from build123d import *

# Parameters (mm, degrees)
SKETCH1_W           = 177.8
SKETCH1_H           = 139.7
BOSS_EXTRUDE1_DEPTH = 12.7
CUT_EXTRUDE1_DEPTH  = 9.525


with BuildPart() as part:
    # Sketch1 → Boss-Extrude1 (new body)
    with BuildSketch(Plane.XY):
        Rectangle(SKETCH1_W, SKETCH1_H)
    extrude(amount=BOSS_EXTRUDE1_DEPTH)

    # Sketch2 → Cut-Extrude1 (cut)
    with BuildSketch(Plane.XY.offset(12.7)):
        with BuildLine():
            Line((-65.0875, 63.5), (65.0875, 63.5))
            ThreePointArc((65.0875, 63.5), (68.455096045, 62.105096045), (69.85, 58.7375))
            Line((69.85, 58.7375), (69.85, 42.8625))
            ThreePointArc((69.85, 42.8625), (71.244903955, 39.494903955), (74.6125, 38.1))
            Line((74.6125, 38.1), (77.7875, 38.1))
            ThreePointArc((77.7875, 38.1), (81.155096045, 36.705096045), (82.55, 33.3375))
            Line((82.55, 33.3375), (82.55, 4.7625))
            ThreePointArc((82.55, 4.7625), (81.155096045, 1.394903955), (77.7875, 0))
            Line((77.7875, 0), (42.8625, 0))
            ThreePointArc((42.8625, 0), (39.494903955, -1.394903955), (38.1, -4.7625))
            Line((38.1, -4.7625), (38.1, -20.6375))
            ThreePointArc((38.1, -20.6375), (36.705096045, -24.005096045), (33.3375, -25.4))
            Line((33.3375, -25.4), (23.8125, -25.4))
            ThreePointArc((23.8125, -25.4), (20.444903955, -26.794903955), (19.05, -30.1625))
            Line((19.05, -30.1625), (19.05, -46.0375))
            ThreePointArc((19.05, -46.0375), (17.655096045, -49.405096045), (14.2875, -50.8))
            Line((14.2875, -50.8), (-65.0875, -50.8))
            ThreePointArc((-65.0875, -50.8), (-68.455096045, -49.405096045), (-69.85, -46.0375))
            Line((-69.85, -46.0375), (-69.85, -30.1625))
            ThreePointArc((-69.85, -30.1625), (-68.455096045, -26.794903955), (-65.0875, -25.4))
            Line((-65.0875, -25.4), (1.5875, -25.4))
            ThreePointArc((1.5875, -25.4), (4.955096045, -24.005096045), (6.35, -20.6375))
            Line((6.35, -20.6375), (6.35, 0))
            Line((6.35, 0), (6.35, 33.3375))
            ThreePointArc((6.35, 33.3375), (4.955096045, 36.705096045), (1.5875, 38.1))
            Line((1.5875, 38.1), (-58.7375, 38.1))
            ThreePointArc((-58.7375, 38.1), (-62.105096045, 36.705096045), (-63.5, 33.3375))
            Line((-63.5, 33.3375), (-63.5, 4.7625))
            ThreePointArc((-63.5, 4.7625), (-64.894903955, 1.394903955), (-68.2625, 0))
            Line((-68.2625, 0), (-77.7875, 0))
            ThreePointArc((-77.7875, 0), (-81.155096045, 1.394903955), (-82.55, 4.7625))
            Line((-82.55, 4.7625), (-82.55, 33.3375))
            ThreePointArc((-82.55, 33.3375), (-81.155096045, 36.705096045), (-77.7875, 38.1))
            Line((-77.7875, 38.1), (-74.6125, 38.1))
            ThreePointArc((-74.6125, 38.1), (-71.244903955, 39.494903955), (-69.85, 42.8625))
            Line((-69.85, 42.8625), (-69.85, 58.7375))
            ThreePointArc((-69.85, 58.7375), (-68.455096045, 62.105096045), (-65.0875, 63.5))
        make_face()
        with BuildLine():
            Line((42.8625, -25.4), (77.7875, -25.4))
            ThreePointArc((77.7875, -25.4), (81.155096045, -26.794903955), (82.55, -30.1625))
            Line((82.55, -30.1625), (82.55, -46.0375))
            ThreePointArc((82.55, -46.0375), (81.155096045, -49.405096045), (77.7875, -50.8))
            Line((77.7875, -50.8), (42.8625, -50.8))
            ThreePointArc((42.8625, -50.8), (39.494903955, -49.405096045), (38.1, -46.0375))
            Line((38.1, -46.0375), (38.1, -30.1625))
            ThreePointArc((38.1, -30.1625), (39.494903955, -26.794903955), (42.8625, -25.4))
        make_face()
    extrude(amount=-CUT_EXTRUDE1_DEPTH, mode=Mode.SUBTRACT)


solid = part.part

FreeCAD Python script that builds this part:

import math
import FreeCAD as App
import Part
import Sketcher
Q = App.Units.Quantity

doc = App.newDocument("Part")
body = doc.addObject("PartDesign::Body", "Body")

# Sketch on XY plane
sketch1 = body.newObject("Sketcher::SketchObject", "Sketch")
sketch1.AttachmentSupport = (doc.getObject("XY_Plane"), [""])
sketch1.MapMode = "FlatFace"
sketch1.addGeometry([
    Part.LineSegment(App.Vector(-88.9, 69.85, 0), App.Vector(-88.9, -69.85, 0)),
    Part.LineSegment(App.Vector(-88.9, -69.85, 0), App.Vector(88.9, -69.85, 0)),
    Part.LineSegment(App.Vector(88.9, -69.85, 0), App.Vector(88.9, 69.85, 0)),
    Part.LineSegment(App.Vector(88.9, 69.85, 0), App.Vector(-88.9, 69.85, 0)),
], False)
sketch1.addConstraint([
    Sketcher.Constraint("Coincident", 0, 2, 1, 1),
    Sketcher.Constraint("Coincident", 1, 2, 2, 1),
    Sketcher.Constraint("Coincident", 2, 2, 3, 1),
    Sketcher.Constraint("Coincident", 3, 2, 0, 1),
    Sketcher.Constraint("Vertical", 0),
    Sketcher.Constraint("Horizontal", 1),
    Sketcher.Constraint("Vertical", 2),
    Sketcher.Constraint("Horizontal", 3),
    Sketcher.Constraint("Symmetric", 0, 2, 2, 2, -1, 1),
    Sketcher.Constraint("DistanceX", 1, 1, 1, 2, Q("7 in")),
    Sketcher.Constraint("DistanceY", 0, 2, 0, 1, Q("5.5 in")),
])
pad1 = body.newObject("PartDesign::Pad", "Pad")
pad1.Profile = sketch1
pad1.Length = Q("0.5 in")

# Sketch on XY plane
sketch2 = body.newObject("Sketcher::SketchObject", "Sketch001")
sketch2.AttachmentSupport = (doc.getObject("XY_Plane"), [""])
sketch2.MapMode = "FlatFace"
sketch2.AttachmentOffset = App.Placement(App.Vector(0, 0, 0.5 * 25.4), App.Rotation())
sketch2.addGeometry([
    Part.LineSegment(App.Vector(65.0875, 63.5, 0), App.Vector(-65.0875, 63.5, 0)),  # 0
    Part.ArcOfCircle(Part.Circle(App.Vector(-65.0875, 58.7375, 0), App.Vector(0, 0, 1), 4.7625), math.radians(90), math.radians(180)),  # 1
    Part.LineSegment(App.Vector(-69.85, 58.7375, 0), App.Vector(-69.85, 42.8625, 0)),  # 2
    Part.ArcOfCircle(Part.Circle(App.Vector(-74.6125, 42.8625, 0), App.Vector(0, 0, 1), 4.7625), math.radians(-90), math.radians(0)),  # 3
    Part.LineSegment(App.Vector(-74.6125, 38.1, 0), App.Vector(-77.7875, 38.1, 0)),  # 4
    Part.ArcOfCircle(Part.Circle(App.Vector(-77.7875, 33.3375, 0), App.Vector(0, 0, 1), 4.7625), math.radians(90), math.radians(180)),  # 5
    Part.LineSegment(App.Vector(-82.55, 33.3375, 0), App.Vector(-82.55, 4.7625, 0)),  # 6
    Part.ArcOfCircle(Part.Circle(App.Vector(-77.7875, 4.7625, 0), App.Vector(0, 0, 1), 4.7625), math.radians(-180), math.radians(-90)),  # 7
    Part.LineSegment(App.Vector(-77.7875, 0, 0), App.Vector(-68.2625, 0, 0)),  # 8
    Part.ArcOfCircle(Part.Circle(App.Vector(-68.2625, 4.7625, 0), App.Vector(0, 0, 1), 4.7625), math.radians(-90), math.radians(0)),  # 9
    Part.LineSegment(App.Vector(-63.5, 4.7625, 0), App.Vector(-63.5, 33.3375, 0)),  # 10
    Part.ArcOfCircle(Part.Circle(App.Vector(-58.7375, 33.3375, 0), App.Vector(0, 0, 1), 4.7625), math.radians(90), math.radians(180)),  # 11
    Part.LineSegment(App.Vector(-58.7375, 38.1, 0), App.Vector(1.5875, 38.1, 0)),  # 12
    Part.ArcOfCircle(Part.Circle(App.Vector(1.5875, 33.3375, 0), App.Vector(0, 0, 1), 4.7625), math.radians(0), math.radians(90)),  # 13
    Part.LineSegment(App.Vector(6.35, 33.3375, 0), App.Vector(6.35, -20.6375, 0)),  # 14
    Part.ArcOfCircle(Part.Circle(App.Vector(1.5875, -20.6375, 0), App.Vector(0, 0, 1), 4.7625), math.radians(-90), math.radians(0)),  # 15
    Part.LineSegment(App.Vector(1.5875, -25.4, 0), App.Vector(-65.0875, -25.4, 0)),  # 16
    Part.ArcOfCircle(Part.Circle(App.Vector(-65.0875, -30.1625, 0), App.Vector(0, 0, 1), 4.7625), math.radians(90), math.radians(180)),  # 17
    Part.LineSegment(App.Vector(-69.85, -30.1625, 0), App.Vector(-69.85, -46.0375, 0)),  # 18
    Part.ArcOfCircle(Part.Circle(App.Vector(-65.0875, -46.0375, 0), App.Vector(0, 0, 1), 4.7625), math.radians(-180), math.radians(-90)),  # 19
    Part.LineSegment(App.Vector(-65.0875, -50.8, 0), App.Vector(14.2875, -50.8, 0)),  # 20
    Part.ArcOfCircle(Part.Circle(App.Vector(14.2875, -46.0375, 0), App.Vector(0, 0, 1), 4.7625), math.radians(-90), math.radians(0)),  # 21
    Part.LineSegment(App.Vector(19.05, -46.0375, 0), App.Vector(19.05, -30.1625, 0)),  # 22
    Part.ArcOfCircle(Part.Circle(App.Vector(23.8125, -30.1625, 0), App.Vector(0, 0, 1), 4.7625), math.radians(90), math.radians(180)),  # 23
    Part.LineSegment(App.Vector(23.8125, -25.4, 0), App.Vector(33.3375, -25.4, 0)),  # 24
    Part.ArcOfCircle(Part.Circle(App.Vector(33.3375, -20.6375, 0), App.Vector(0, 0, 1), 4.7625), math.radians(-90), math.radians(0)),  # 25
    Part.LineSegment(App.Vector(38.1, -20.6375, 0), App.Vector(38.1, -4.7625, 0)),  # 26
    Part.ArcOfCircle(Part.Circle(App.Vector(42.8625, -4.7625, 0), App.Vector(0, 0, 1), 4.7625), math.radians(90), math.radians(180)),  # 27
    Part.LineSegment(App.Vector(42.8625, 0, 0), App.Vector(77.7875, 0, 0)),  # 28
    Part.ArcOfCircle(Part.Circle(App.Vector(77.7875, 4.7625, 0), App.Vector(0, 0, 1), 4.7625), math.radians(-90), math.radians(0)),  # 29
    Part.LineSegment(App.Vector(82.55, 4.7625, 0), App.Vector(82.55, 33.3375, 0)),  # 30
    Part.ArcOfCircle(Part.Circle(App.Vector(77.7875, 33.3375, 0), App.Vector(0, 0, 1), 4.7625), math.radians(0), math.radians(90)),  # 31
    Part.LineSegment(App.Vector(77.7875, 38.1, 0), App.Vector(74.6125, 38.1, 0)),  # 32
    Part.ArcOfCircle(Part.Circle(App.Vector(74.6125, 42.8625, 0), App.Vector(0, 0, 1), 4.7625), math.radians(-180), math.radians(-90)),  # 33
    Part.LineSegment(App.Vector(69.85, 42.8625, 0), App.Vector(69.85, 58.7375, 0)),  # 34
    Part.ArcOfCircle(Part.Circle(App.Vector(65.0875, 58.7375, 0), App.Vector(0, 0, 1), 4.7625), math.radians(0), math.radians(90)),  # 35
    Part.LineSegment(App.Vector(77.7875, -25.4, 0), App.Vector(42.8625, -25.4, 0)),  # 36
    Part.ArcOfCircle(Part.Circle(App.Vector(42.8625, -30.1625, 0), App.Vector(0, 0, 1), 4.7625), math.radians(90), math.radians(180)),  # 37
    Part.LineSegment(App.Vector(38.1, -30.1625, 0), App.Vector(38.1, -46.0375, 0)),  # 38
    Part.ArcOfCircle(Part.Circle(App.Vector(42.8625, -46.0375, 0), App.Vector(0, 0, 1), 4.7625), math.radians(-180), math.radians(-90)),  # 39
    Part.LineSegment(App.Vector(42.8625, -50.8, 0), App.Vector(77.7875, -50.8, 0)),  # 40
    Part.ArcOfCircle(Part.Circle(App.Vector(77.7875, -46.0375, 0), App.Vector(0, 0, 1), 4.7625), math.radians(-90), math.radians(0)),  # 41
    Part.LineSegment(App.Vector(82.55, -46.0375, 0), App.Vector(82.55, -30.1625, 0)),  # 42
    Part.ArcOfCircle(Part.Circle(App.Vector(77.7875, -30.1625, 0), App.Vector(0, 0, 1), 4.7625), math.radians(0), math.radians(90)),  # 43
], False)
sketch2.addConstraint([
    Sketcher.Constraint("Tangent", 0, 2, 1, 1),
    Sketcher.Constraint("Tangent", 1, 2, 2, 1),
    Sketcher.Constraint("Tangent", 2, 2, 3, 2),
    Sketcher.Constraint("Tangent", 3, 1, 4, 1),
    Sketcher.Constraint("Tangent", 4, 2, 5, 1),
    Sketcher.Constraint("Tangent", 5, 2, 6, 1),
    Sketcher.Constraint("Tangent", 6, 2, 7, 1),
    Sketcher.Constraint("Tangent", 7, 2, 8, 1),
    Sketcher.Constraint("Tangent", 8, 2, 9, 1),
    Sketcher.Constraint("Tangent", 9, 2, 10, 1),
    Sketcher.Constraint("Tangent", 10, 2, 11, 2),
    Sketcher.Constraint("Tangent", 11, 1, 12, 1),
    Sketcher.Constraint("Tangent", 12, 2, 13, 2),
    Sketcher.Constraint("Tangent", 13, 1, 14, 1),
    Sketcher.Constraint("Tangent", 14, 2, 15, 2),
    Sketcher.Constraint("Tangent", 15, 1, 16, 1),
    Sketcher.Constraint("Tangent", 16, 2, 17, 1),
    Sketcher.Constraint("Tangent", 17, 2, 18, 1),
    Sketcher.Constraint("Tangent", 18, 2, 19, 1),
    Sketcher.Constraint("Tangent", 19, 2, 20, 1),
    Sketcher.Constraint("Tangent", 20, 2, 21, 1),
    Sketcher.Constraint("Tangent", 21, 2, 22, 1),
    Sketcher.Constraint("Tangent", 22, 2, 23, 2),
    Sketcher.Constraint("Tangent", 23, 1, 24, 1),
    Sketcher.Constraint("Tangent", 24, 2, 25, 1),
    Sketcher.Constraint("Tangent", 25, 2, 26, 1),
    Sketcher.Constraint("Tangent", 26, 2, 27, 2),
    Sketcher.Constraint("Tangent", 27, 1, 28, 1),
    Sketcher.Constraint("Tangent", 28, 2, 29, 1),
    Sketcher.Constraint("Tangent", 29, 2, 30, 1),
    Sketcher.Constraint("Tangent", 30, 2, 31, 1),
    Sketcher.Constraint("Tangent", 31, 2, 32, 1),
    Sketcher.Constraint("Tangent", 32, 2, 33, 2),
    Sketcher.Constraint("Tangent", 33, 1, 34, 1),
    Sketcher.Constraint("Tangent", 34, 2, 35, 1),
    Sketcher.Constraint("Tangent", 35, 2, 0, 1),
    Sketcher.Constraint("Tangent", 36, 2, 37, 1),
    Sketcher.Constraint("Tangent", 37, 2, 38, 1),
    Sketcher.Constraint("Tangent", 38, 2, 39, 1),
    Sketcher.Constraint("Tangent", 39, 2, 40, 1),
    Sketcher.Constraint("Tangent", 40, 2, 41, 1),
    Sketcher.Constraint("Tangent", 41, 2, 42, 1),
    Sketcher.Constraint("Tangent", 42, 2, 43, 1),
    Sketcher.Constraint("Tangent", 43, 2, 36, 1),
    Sketcher.Constraint("Horizontal", 0),
    Sketcher.Constraint("Vertical", 2),
    Sketcher.Constraint("Horizontal", 4),
    Sketcher.Constraint("Vertical", 6),
    Sketcher.Constraint("Horizontal", 8),
    Sketcher.Constraint("Vertical", 10),
    Sketcher.Constraint("Horizontal", 12),
    Sketcher.Constraint("Vertical", 14),
    Sketcher.Constraint("Horizontal", 16),
    Sketcher.Constraint("Vertical", 18),
    Sketcher.Constraint("Horizontal", 20),
    Sketcher.Constraint("Vertical", 22),
    Sketcher.Constraint("Horizontal", 24),
    Sketcher.Constraint("Vertical", 26),
    Sketcher.Constraint("Horizontal", 28),
    Sketcher.Constraint("Vertical", 30),
    Sketcher.Constraint("Horizontal", 32),
    Sketcher.Constraint("Vertical", 34),
    Sketcher.Constraint("Horizontal", 36),
    Sketcher.Constraint("Vertical", 38),
    Sketcher.Constraint("Horizontal", 40),
    Sketcher.Constraint("Vertical", 42),
    Sketcher.Constraint("Equal", 1, 3),
    Sketcher.Constraint("Equal", 3, 5),
    Sketcher.Constraint("Equal", 5, 7),
    Sketcher.Constraint("Equal", 7, 9),
    Sketcher.Constraint("Equal", 9, 11),
    Sketcher.Constraint("Equal", 11, 13),
    Sketcher.Constraint("Equal", 13, 15),
    Sketcher.Constraint("Equal", 15, 17),
    Sketcher.Constraint("Equal", 17, 19),
    Sketcher.Constraint("Equal", 19, 21),
    Sketcher.Constraint("Equal", 21, 23),
    Sketcher.Constraint("Equal", 23, 25),
    Sketcher.Constraint("Equal", 25, 27),
    Sketcher.Constraint("Equal", 27, 29),
    Sketcher.Constraint("Equal", 29, 31),
    Sketcher.Constraint("Equal", 31, 33),
    Sketcher.Constraint("Equal", 33, 35),
    Sketcher.Constraint("Equal", 35, 37),
    Sketcher.Constraint("Equal", 37, 39),
    Sketcher.Constraint("Equal", 39, 41),
    Sketcher.Constraint("Equal", 41, 43),
    Sketcher.Constraint("Symmetric", 7, 2, 28, 2, -1, 1),
    Sketcher.Constraint("Symmetric", 3, 3, 33, 3, -2),
    Sketcher.Constraint("PointOnObject", 7, 2, -1),
    Sketcher.Constraint("Horizontal", 5, 3, 11, 3),
    Sketcher.Constraint("Horizontal", 17, 3, 23, 3),
    Sketcher.Constraint("Horizontal", 23, 3, 37, 3),
    Sketcher.Constraint("Horizontal", 21, 3, 39, 3),
    Sketcher.Constraint("Vertical", 1, 3, 17, 3),
    Sketcher.Constraint("Vertical", 27, 3, 37, 3),
    Sketcher.Constraint("Vertical", 31, 3, 41, 3),
    Sketcher.Constraint("Equal", 8, 24),
    Sketcher.Constraint("Equal", 2, 18),
    Sketcher.Constraint("Equal", 22, 26),
    Sketcher.Constraint("DistanceY", 15, 1, -1, 1, Q("1 in")),
    Sketcher.Constraint("Radius", 1, Q("0.1875 in")),
    Sketcher.Constraint("DistanceY", -1, 1, 0, 2, Q("2.5 in")),
    Sketcher.Constraint("DistanceX", 9, 2, -1, 1, Q("2.5 in")),
    Sketcher.Constraint("DistanceX", -1, 1, 25, 2, Q("1.5 in")),
    Sketcher.Constraint("DistanceX", 0, 2, 0, 1, Q("5.125 in")),
    Sketcher.Constraint("DistanceX", 4, 2, 4, 1, Q("0.125 in")),
    Sketcher.Constraint("DistanceX", 12, 1, 12, 2, Q("2.375 in")),
])
pocket1 = body.newObject("PartDesign::Pocket", "Pocket")
pocket1.Profile = sketch2
pocket1.Length = Q("0.375 in")

doc.recompute()
